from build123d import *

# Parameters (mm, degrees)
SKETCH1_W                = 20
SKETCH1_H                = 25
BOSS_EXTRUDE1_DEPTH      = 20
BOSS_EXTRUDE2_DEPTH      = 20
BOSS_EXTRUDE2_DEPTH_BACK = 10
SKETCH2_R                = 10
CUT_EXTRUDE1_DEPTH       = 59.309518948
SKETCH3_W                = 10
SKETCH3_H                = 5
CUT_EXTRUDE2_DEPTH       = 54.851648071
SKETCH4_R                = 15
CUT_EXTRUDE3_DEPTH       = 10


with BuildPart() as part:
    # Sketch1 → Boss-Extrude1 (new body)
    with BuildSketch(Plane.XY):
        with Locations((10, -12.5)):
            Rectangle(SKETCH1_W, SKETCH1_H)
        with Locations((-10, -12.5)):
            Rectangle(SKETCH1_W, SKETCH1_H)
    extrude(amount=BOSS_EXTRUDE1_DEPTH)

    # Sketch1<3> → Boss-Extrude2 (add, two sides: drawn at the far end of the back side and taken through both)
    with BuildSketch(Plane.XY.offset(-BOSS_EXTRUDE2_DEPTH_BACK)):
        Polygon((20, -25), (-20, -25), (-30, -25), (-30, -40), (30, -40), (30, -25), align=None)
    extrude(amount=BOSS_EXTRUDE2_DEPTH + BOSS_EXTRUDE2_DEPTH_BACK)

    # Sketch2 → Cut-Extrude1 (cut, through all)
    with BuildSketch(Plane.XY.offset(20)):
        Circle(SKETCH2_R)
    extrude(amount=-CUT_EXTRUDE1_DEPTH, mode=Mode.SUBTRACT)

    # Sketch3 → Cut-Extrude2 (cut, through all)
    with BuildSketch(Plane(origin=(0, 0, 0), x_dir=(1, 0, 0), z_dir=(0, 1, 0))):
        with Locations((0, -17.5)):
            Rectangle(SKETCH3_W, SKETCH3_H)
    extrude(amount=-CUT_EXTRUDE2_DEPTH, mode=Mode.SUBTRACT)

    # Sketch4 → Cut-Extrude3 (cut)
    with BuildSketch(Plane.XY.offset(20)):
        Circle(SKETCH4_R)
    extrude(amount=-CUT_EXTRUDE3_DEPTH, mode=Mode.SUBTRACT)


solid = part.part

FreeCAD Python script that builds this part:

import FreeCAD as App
import Part
import Sketcher
Q = App.Units.Quantity


def add_polygon(sketch, points):
    """Adds a closed chain of lines whose ends are joined by coincident constraints."""
    first, n = sketch.GeometryCount, len(points)
    for a, b in zip(points, points[1:] + points[:1]):
        sketch.addGeometry(Part.LineSegment(App.Vector(*a, 0), App.Vector(*b, 0)), False)
    for i in range(n):
        sketch.addConstraint(Sketcher.Constraint("Coincident", first + i, 2, first + (i + 1) % n, 1))

doc = App.newDocument("Part")
body = doc.addObject("PartDesign::Body", "Body")

sketch1 = body.newObject("Sketcher::SketchObject", "Sketch")
sketch1.AttachmentSupport = (doc.getObject("XY_Plane"), [""])
sketch1.MapMode = "FlatFace"
add_polygon(sketch1, [(20, -25), (20, 0), (-20, 0), (-20, -25)])
sketch1.addConstraint([
    Sketcher.Constraint("Vertical", 0),
    Sketcher.Constraint("Horizontal", 1),
    Sketcher.Constraint("Vertical", 2),
    Sketcher.Constraint("Horizontal", 3),
    Sketcher.Constraint("Symmetric", 0, 2, 1, 2, -1, 1),
    Sketcher.Constraint("DistanceX", 1, 2, 1, 1, Q("40 mm")),
    Sketcher.Constraint("DistanceY", 0, 1, 0, 2, Q("25 mm")),
])
pad1 = body.newObject("PartDesign::Pad", "Pad")
pad1.Profile = sketch1
pad1.Length = 20

sketch2 = body.newObject("Sketcher::SketchObject", "Sketch001")
sketch2.AttachmentSupport = (doc.getObject("XY_Plane"), [""])
sketch2.MapMode = "FlatFace"
add_polygon(sketch2, [(-30, -25), (-30, -40), (30, -40), (30, -25)])
sketch2.addConstraint([
    Sketcher.Constraint("Vertical", 0),
    Sketcher.Constraint("Horizontal", 1),
    Sketcher.Constraint("Vertical", 2),
    Sketcher.Constraint("Horizontal", 3),
    Sketcher.Constraint("DistanceX", 1, 1, 1, 2, Q("60 mm")),
    Sketcher.Constraint("DistanceY", 0, 2, 0, 1, Q("15 mm")),
    Sketcher.Constraint("DistanceX", 0, 2, -1, 1, Q("30 mm")),
    Sketcher.Constraint("DistanceY", 0, 2, -1, 1, Q("40 mm")),
])
pad2 = body.newObject("PartDesign::Pad", "Pad001")
pad2.Profile = sketch2
pad2.Type = "TwoLengths"
pad2.Length = 20
pad2.Length2 = 10

sketch3 = body.newObject("Sketcher::SketchObject", "Sketch002")
sketch3.AttachmentSupport = (doc.getObject("XY_Plane"), [""])
sketch3.MapMode = "FlatFace"
sketch3.AttachmentOffset = App.Placement(App.Vector(0, 0, 20), App.Rotation())
sketch3.addGeometry(Part.Circle(App.Vector(0, 0, 0), App.Vector(0, 0, 1), 10), False)
sketch3.addConstraint([
    Sketcher.Constraint("Coincident", 0, 3, -1, 1),
    Sketcher.Constraint("Diameter", 0, Q("20 mm")),
])
pocket1 = body.newObject("PartDesign::Pocket", "Pocket")
pocket1.Profile = sketch3
pocket1.Type = "ThroughAll"

sketch4 = body.newObject("Sketcher::SketchObject", "Sketch003")
sketch4.AttachmentSupport = (doc.getObject("XZ_Plane"), [""])
sketch4.MapMode = "FlatFace"
add_polygon(sketch4, [(-5, 15), (-5, 20), (5, 20), (5, 15)])
sketch4.addConstraint([
    Sketcher.Constraint("Vertical", 0),
    Sketcher.Constraint("Horizontal", 1),
    Sketcher.Constraint("Vertical", 2),
    Sketcher.Constraint("Horizontal", 3),
    Sketcher.Constraint("DistanceX", 1, 1, 1, 2, Q("10 mm")),
    Sketcher.Constraint("DistanceY", 0, 1, 0, 2, Q("5 mm")),
    Sketcher.Constraint("DistanceX", 0, 2, -1, 1, Q("5 mm")),
    Sketcher.Constraint("DistanceY", -1, 1, 0, 2, Q("20 mm")),
])
pocket2 = body.newObject("PartDesign::Pocket", "Pocket001")
pocket2.Profile = sketch4
pocket2.Type = "ThroughAll"
pocket2.Reversed = True

sketch5 = body.newObject("Sketcher::SketchObject", "Sketch004")
sketch5.AttachmentSupport = (doc.getObject("XY_Plane"), [""])
sketch5.MapMode = "FlatFace"
sketch5.AttachmentOffset = App.Placement(App.Vector(0, 0, 20), App.Rotation())
sketch5.addGeometry(Part.Circle(App.Vector(0, 0, 0), App.Vector(0, 0, 1), 15), False)
sketch5.addConstraint([
    Sketcher.Constraint("Coincident", 0, 3, -1, 1),
    Sketcher.Constraint("Diameter", 0, Q("30 mm")),
])
pocket3 = body.newObject("PartDesign::Pocket", "Pocket002")
pocket3.Profile = sketch5
pocket3.Length = 10

doc.recompute()
